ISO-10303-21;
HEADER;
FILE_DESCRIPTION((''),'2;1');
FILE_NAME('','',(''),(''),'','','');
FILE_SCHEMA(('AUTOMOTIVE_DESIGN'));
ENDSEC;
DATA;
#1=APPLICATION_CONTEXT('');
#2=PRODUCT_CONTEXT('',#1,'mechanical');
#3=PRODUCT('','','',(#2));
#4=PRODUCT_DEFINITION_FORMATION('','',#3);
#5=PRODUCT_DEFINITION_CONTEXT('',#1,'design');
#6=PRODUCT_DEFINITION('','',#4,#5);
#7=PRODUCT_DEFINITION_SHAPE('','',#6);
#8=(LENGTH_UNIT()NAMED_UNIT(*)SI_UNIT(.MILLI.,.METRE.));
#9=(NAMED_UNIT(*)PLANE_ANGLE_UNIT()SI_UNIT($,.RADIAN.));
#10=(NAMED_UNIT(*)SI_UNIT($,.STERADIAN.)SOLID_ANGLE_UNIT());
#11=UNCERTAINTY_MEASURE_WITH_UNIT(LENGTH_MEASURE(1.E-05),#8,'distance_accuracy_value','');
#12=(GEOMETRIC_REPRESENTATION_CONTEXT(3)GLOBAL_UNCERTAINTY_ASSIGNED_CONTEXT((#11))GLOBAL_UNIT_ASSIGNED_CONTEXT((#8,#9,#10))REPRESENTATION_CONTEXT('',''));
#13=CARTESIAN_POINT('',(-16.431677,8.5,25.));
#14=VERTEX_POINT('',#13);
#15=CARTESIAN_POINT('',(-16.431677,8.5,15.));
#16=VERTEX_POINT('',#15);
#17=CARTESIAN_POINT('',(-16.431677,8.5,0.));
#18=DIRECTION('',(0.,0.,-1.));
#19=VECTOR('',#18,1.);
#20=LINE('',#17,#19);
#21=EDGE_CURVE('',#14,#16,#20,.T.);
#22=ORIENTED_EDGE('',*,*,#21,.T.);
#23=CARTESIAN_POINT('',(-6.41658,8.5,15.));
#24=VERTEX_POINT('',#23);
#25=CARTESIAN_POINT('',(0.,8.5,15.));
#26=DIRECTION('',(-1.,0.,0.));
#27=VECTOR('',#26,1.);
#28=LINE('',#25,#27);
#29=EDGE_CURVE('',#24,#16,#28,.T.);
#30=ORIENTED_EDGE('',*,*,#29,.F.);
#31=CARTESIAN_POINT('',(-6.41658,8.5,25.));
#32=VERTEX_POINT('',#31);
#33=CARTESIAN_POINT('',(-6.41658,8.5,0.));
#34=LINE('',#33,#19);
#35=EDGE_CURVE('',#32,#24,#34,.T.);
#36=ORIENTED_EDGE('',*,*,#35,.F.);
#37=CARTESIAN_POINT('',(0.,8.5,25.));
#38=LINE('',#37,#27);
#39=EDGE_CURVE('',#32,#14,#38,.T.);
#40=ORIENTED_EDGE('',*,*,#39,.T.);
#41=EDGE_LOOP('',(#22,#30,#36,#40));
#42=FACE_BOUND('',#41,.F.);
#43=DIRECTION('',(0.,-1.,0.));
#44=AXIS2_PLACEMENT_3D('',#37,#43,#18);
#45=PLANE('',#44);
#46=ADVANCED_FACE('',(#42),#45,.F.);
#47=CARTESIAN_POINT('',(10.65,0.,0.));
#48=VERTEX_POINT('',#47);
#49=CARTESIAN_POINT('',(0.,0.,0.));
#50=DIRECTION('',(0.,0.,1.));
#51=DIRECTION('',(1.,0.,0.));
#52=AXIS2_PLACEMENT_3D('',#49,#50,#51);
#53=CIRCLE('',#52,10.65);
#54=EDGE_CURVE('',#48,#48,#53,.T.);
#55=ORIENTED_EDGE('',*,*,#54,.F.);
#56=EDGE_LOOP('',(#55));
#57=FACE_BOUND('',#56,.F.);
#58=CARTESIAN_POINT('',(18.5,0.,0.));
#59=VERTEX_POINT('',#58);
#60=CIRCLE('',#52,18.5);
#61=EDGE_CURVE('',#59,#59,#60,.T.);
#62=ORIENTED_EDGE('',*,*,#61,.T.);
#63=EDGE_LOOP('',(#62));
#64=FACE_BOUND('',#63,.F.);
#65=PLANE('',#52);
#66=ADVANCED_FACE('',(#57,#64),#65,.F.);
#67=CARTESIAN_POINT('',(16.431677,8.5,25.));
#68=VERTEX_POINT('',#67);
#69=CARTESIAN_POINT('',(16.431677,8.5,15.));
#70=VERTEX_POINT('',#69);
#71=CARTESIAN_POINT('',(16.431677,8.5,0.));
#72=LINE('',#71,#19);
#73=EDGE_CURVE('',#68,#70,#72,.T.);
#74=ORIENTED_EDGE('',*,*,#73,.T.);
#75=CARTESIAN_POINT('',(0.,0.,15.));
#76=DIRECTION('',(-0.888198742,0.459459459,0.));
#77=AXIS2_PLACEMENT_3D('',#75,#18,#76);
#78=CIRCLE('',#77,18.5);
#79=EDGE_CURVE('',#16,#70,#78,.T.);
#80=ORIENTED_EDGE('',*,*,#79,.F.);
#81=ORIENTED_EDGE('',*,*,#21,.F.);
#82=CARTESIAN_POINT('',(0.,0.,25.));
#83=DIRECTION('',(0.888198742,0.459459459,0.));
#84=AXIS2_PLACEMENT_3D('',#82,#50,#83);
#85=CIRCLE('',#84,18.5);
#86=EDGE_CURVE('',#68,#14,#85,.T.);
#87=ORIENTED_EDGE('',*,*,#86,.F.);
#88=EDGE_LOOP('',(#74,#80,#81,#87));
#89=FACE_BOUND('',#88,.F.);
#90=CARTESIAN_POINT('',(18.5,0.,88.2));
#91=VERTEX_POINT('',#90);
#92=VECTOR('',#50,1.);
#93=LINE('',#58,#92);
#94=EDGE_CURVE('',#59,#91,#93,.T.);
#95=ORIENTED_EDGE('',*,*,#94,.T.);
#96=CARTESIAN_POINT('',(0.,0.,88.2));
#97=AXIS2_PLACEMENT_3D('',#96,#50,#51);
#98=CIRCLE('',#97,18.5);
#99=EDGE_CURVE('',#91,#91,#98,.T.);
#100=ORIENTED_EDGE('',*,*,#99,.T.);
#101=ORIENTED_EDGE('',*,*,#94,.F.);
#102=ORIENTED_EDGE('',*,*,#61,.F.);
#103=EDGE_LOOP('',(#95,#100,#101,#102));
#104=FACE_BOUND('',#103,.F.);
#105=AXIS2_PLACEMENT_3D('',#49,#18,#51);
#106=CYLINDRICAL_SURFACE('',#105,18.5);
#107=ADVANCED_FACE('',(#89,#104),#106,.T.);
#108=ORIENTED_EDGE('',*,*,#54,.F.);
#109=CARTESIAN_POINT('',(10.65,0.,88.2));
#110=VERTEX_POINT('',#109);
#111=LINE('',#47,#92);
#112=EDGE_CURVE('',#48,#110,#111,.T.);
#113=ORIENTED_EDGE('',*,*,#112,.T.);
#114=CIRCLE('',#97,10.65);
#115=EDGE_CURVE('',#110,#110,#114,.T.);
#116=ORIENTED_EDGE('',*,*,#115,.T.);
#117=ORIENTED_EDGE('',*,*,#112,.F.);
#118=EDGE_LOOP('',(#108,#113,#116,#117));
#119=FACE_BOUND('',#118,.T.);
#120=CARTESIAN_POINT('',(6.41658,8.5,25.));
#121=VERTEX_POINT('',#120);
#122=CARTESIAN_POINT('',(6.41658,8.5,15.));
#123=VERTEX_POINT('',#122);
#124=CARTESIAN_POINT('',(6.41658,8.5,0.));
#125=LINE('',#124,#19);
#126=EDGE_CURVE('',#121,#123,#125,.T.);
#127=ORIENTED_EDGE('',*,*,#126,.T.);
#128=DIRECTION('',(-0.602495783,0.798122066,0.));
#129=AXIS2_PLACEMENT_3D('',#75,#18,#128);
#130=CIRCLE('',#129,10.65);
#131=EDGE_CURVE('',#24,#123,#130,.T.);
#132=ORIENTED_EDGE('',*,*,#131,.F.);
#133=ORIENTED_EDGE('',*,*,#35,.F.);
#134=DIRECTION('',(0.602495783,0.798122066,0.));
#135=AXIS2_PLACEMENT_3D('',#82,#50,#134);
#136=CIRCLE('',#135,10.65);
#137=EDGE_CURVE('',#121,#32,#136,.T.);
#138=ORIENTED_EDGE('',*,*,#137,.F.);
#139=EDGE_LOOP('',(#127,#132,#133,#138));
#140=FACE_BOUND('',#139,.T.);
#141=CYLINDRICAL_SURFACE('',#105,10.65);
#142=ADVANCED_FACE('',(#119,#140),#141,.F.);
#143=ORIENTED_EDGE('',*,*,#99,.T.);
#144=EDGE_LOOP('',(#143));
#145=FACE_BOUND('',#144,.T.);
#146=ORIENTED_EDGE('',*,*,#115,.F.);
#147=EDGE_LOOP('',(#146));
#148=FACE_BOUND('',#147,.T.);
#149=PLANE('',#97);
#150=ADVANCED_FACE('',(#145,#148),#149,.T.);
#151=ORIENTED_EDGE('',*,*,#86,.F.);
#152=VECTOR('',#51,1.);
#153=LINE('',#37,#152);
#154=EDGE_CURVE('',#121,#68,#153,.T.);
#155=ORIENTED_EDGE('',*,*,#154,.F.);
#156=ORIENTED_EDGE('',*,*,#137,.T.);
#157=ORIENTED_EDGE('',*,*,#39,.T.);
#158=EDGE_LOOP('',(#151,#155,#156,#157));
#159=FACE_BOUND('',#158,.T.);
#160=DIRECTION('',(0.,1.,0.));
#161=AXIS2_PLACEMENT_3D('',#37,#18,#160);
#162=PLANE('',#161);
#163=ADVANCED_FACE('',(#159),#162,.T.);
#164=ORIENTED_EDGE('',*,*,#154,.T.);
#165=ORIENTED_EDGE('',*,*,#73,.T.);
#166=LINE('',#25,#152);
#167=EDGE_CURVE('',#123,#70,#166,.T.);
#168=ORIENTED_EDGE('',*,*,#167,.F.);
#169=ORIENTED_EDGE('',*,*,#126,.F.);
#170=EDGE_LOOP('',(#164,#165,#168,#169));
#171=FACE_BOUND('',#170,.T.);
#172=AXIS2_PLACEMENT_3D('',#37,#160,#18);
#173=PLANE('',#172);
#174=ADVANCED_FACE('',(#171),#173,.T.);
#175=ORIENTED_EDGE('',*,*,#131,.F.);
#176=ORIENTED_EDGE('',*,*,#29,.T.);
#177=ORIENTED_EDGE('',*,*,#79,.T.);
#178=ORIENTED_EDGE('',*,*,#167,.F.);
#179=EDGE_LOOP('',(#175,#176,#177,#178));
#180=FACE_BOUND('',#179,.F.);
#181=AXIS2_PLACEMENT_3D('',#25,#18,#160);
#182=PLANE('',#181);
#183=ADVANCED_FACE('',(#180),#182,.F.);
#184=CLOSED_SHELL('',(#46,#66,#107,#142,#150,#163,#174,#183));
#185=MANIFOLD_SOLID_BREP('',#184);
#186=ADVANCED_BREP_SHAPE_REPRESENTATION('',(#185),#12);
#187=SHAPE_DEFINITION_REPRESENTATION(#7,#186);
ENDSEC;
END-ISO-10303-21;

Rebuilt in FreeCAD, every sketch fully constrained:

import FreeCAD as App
import Part
import Sketcher

V = App.Vector


def add_polygon(sketch, points):
    """Adds a closed chain of lines whose ends are joined by coincident constraints."""
    first, n = sketch.GeometryCount, len(points)
    for a, b in zip(points, points[1:] + points[:1]):
        sketch.addGeometry(Part.LineSegment(App.Vector(*a, 0), App.Vector(*b, 0)), False)
    for i in range(n):
        sketch.addConstraint(Sketcher.Constraint("Coincident", first + i, 2, first + (i + 1) % n, 1))

doc = App.newDocument("Part")
body = doc.addObject("PartDesign::Body", "Body")

sketch1 = body.newObject("Sketcher::SketchObject", "Sketch")
sketch1.AttachmentSupport = (doc.getObject("XY_Plane"), [""])
sketch1.MapMode = "FlatFace"
sketch1.addGeometry([
    Part.Circle(V(0, 0, 0), V(0, 0, 1), 18),
    Part.Circle(V(0, 0, 0), V(0, 0, 1), 11),
], False)
sketch1.addConstraint([
    Sketcher.Constraint("Coincident", 0, 3, -1, 1),
    Sketcher.Constraint("Coincident", 1, 3, -1, 1),
    Sketcher.Constraint("Diameter", 0, 37.0),
    Sketcher.Constraint("Diameter", 1, 21.3),
])
pad1 = body.newObject("PartDesign::Pad", "Pad")
pad1.Profile = sketch1
pad1.Length = 88.2

sketch2 = body.newObject("Sketcher::SketchObject", "Sketch001")
sketch2.AttachmentSupport = (doc.getObject("YZ_Plane"), [""])
sketch2.MapMode = "FlatFace"
add_polygon(sketch2, [(18, 25), (8, 25), (8, 15), (18, 15)])
sketch2.addConstraint([
    Sketcher.Constraint("Horizontal", 0),
    Sketcher.Constraint("Vertical", 1),
    Sketcher.Constraint("Horizontal", 2),
    Sketcher.Constraint("Vertical", 3),
    Sketcher.Constraint("Equal", 2, 1),
    Sketcher.Constraint("DistanceX", 0, 2, 0, 1, 10.0),
    Sketcher.Constraint("DistanceY", -1, 1, 0, 2, 25.0),
    Sketcher.Constraint("DistanceX", -1, 1, 0, 2, 8.5),
])
pocket1 = body.newObject("PartDesign::Pocket", "Pocket")
pocket1.Profile = sketch2
pocket1.Type = "ThroughAll"
pocket1.Midplane = True

doc.recompute()
